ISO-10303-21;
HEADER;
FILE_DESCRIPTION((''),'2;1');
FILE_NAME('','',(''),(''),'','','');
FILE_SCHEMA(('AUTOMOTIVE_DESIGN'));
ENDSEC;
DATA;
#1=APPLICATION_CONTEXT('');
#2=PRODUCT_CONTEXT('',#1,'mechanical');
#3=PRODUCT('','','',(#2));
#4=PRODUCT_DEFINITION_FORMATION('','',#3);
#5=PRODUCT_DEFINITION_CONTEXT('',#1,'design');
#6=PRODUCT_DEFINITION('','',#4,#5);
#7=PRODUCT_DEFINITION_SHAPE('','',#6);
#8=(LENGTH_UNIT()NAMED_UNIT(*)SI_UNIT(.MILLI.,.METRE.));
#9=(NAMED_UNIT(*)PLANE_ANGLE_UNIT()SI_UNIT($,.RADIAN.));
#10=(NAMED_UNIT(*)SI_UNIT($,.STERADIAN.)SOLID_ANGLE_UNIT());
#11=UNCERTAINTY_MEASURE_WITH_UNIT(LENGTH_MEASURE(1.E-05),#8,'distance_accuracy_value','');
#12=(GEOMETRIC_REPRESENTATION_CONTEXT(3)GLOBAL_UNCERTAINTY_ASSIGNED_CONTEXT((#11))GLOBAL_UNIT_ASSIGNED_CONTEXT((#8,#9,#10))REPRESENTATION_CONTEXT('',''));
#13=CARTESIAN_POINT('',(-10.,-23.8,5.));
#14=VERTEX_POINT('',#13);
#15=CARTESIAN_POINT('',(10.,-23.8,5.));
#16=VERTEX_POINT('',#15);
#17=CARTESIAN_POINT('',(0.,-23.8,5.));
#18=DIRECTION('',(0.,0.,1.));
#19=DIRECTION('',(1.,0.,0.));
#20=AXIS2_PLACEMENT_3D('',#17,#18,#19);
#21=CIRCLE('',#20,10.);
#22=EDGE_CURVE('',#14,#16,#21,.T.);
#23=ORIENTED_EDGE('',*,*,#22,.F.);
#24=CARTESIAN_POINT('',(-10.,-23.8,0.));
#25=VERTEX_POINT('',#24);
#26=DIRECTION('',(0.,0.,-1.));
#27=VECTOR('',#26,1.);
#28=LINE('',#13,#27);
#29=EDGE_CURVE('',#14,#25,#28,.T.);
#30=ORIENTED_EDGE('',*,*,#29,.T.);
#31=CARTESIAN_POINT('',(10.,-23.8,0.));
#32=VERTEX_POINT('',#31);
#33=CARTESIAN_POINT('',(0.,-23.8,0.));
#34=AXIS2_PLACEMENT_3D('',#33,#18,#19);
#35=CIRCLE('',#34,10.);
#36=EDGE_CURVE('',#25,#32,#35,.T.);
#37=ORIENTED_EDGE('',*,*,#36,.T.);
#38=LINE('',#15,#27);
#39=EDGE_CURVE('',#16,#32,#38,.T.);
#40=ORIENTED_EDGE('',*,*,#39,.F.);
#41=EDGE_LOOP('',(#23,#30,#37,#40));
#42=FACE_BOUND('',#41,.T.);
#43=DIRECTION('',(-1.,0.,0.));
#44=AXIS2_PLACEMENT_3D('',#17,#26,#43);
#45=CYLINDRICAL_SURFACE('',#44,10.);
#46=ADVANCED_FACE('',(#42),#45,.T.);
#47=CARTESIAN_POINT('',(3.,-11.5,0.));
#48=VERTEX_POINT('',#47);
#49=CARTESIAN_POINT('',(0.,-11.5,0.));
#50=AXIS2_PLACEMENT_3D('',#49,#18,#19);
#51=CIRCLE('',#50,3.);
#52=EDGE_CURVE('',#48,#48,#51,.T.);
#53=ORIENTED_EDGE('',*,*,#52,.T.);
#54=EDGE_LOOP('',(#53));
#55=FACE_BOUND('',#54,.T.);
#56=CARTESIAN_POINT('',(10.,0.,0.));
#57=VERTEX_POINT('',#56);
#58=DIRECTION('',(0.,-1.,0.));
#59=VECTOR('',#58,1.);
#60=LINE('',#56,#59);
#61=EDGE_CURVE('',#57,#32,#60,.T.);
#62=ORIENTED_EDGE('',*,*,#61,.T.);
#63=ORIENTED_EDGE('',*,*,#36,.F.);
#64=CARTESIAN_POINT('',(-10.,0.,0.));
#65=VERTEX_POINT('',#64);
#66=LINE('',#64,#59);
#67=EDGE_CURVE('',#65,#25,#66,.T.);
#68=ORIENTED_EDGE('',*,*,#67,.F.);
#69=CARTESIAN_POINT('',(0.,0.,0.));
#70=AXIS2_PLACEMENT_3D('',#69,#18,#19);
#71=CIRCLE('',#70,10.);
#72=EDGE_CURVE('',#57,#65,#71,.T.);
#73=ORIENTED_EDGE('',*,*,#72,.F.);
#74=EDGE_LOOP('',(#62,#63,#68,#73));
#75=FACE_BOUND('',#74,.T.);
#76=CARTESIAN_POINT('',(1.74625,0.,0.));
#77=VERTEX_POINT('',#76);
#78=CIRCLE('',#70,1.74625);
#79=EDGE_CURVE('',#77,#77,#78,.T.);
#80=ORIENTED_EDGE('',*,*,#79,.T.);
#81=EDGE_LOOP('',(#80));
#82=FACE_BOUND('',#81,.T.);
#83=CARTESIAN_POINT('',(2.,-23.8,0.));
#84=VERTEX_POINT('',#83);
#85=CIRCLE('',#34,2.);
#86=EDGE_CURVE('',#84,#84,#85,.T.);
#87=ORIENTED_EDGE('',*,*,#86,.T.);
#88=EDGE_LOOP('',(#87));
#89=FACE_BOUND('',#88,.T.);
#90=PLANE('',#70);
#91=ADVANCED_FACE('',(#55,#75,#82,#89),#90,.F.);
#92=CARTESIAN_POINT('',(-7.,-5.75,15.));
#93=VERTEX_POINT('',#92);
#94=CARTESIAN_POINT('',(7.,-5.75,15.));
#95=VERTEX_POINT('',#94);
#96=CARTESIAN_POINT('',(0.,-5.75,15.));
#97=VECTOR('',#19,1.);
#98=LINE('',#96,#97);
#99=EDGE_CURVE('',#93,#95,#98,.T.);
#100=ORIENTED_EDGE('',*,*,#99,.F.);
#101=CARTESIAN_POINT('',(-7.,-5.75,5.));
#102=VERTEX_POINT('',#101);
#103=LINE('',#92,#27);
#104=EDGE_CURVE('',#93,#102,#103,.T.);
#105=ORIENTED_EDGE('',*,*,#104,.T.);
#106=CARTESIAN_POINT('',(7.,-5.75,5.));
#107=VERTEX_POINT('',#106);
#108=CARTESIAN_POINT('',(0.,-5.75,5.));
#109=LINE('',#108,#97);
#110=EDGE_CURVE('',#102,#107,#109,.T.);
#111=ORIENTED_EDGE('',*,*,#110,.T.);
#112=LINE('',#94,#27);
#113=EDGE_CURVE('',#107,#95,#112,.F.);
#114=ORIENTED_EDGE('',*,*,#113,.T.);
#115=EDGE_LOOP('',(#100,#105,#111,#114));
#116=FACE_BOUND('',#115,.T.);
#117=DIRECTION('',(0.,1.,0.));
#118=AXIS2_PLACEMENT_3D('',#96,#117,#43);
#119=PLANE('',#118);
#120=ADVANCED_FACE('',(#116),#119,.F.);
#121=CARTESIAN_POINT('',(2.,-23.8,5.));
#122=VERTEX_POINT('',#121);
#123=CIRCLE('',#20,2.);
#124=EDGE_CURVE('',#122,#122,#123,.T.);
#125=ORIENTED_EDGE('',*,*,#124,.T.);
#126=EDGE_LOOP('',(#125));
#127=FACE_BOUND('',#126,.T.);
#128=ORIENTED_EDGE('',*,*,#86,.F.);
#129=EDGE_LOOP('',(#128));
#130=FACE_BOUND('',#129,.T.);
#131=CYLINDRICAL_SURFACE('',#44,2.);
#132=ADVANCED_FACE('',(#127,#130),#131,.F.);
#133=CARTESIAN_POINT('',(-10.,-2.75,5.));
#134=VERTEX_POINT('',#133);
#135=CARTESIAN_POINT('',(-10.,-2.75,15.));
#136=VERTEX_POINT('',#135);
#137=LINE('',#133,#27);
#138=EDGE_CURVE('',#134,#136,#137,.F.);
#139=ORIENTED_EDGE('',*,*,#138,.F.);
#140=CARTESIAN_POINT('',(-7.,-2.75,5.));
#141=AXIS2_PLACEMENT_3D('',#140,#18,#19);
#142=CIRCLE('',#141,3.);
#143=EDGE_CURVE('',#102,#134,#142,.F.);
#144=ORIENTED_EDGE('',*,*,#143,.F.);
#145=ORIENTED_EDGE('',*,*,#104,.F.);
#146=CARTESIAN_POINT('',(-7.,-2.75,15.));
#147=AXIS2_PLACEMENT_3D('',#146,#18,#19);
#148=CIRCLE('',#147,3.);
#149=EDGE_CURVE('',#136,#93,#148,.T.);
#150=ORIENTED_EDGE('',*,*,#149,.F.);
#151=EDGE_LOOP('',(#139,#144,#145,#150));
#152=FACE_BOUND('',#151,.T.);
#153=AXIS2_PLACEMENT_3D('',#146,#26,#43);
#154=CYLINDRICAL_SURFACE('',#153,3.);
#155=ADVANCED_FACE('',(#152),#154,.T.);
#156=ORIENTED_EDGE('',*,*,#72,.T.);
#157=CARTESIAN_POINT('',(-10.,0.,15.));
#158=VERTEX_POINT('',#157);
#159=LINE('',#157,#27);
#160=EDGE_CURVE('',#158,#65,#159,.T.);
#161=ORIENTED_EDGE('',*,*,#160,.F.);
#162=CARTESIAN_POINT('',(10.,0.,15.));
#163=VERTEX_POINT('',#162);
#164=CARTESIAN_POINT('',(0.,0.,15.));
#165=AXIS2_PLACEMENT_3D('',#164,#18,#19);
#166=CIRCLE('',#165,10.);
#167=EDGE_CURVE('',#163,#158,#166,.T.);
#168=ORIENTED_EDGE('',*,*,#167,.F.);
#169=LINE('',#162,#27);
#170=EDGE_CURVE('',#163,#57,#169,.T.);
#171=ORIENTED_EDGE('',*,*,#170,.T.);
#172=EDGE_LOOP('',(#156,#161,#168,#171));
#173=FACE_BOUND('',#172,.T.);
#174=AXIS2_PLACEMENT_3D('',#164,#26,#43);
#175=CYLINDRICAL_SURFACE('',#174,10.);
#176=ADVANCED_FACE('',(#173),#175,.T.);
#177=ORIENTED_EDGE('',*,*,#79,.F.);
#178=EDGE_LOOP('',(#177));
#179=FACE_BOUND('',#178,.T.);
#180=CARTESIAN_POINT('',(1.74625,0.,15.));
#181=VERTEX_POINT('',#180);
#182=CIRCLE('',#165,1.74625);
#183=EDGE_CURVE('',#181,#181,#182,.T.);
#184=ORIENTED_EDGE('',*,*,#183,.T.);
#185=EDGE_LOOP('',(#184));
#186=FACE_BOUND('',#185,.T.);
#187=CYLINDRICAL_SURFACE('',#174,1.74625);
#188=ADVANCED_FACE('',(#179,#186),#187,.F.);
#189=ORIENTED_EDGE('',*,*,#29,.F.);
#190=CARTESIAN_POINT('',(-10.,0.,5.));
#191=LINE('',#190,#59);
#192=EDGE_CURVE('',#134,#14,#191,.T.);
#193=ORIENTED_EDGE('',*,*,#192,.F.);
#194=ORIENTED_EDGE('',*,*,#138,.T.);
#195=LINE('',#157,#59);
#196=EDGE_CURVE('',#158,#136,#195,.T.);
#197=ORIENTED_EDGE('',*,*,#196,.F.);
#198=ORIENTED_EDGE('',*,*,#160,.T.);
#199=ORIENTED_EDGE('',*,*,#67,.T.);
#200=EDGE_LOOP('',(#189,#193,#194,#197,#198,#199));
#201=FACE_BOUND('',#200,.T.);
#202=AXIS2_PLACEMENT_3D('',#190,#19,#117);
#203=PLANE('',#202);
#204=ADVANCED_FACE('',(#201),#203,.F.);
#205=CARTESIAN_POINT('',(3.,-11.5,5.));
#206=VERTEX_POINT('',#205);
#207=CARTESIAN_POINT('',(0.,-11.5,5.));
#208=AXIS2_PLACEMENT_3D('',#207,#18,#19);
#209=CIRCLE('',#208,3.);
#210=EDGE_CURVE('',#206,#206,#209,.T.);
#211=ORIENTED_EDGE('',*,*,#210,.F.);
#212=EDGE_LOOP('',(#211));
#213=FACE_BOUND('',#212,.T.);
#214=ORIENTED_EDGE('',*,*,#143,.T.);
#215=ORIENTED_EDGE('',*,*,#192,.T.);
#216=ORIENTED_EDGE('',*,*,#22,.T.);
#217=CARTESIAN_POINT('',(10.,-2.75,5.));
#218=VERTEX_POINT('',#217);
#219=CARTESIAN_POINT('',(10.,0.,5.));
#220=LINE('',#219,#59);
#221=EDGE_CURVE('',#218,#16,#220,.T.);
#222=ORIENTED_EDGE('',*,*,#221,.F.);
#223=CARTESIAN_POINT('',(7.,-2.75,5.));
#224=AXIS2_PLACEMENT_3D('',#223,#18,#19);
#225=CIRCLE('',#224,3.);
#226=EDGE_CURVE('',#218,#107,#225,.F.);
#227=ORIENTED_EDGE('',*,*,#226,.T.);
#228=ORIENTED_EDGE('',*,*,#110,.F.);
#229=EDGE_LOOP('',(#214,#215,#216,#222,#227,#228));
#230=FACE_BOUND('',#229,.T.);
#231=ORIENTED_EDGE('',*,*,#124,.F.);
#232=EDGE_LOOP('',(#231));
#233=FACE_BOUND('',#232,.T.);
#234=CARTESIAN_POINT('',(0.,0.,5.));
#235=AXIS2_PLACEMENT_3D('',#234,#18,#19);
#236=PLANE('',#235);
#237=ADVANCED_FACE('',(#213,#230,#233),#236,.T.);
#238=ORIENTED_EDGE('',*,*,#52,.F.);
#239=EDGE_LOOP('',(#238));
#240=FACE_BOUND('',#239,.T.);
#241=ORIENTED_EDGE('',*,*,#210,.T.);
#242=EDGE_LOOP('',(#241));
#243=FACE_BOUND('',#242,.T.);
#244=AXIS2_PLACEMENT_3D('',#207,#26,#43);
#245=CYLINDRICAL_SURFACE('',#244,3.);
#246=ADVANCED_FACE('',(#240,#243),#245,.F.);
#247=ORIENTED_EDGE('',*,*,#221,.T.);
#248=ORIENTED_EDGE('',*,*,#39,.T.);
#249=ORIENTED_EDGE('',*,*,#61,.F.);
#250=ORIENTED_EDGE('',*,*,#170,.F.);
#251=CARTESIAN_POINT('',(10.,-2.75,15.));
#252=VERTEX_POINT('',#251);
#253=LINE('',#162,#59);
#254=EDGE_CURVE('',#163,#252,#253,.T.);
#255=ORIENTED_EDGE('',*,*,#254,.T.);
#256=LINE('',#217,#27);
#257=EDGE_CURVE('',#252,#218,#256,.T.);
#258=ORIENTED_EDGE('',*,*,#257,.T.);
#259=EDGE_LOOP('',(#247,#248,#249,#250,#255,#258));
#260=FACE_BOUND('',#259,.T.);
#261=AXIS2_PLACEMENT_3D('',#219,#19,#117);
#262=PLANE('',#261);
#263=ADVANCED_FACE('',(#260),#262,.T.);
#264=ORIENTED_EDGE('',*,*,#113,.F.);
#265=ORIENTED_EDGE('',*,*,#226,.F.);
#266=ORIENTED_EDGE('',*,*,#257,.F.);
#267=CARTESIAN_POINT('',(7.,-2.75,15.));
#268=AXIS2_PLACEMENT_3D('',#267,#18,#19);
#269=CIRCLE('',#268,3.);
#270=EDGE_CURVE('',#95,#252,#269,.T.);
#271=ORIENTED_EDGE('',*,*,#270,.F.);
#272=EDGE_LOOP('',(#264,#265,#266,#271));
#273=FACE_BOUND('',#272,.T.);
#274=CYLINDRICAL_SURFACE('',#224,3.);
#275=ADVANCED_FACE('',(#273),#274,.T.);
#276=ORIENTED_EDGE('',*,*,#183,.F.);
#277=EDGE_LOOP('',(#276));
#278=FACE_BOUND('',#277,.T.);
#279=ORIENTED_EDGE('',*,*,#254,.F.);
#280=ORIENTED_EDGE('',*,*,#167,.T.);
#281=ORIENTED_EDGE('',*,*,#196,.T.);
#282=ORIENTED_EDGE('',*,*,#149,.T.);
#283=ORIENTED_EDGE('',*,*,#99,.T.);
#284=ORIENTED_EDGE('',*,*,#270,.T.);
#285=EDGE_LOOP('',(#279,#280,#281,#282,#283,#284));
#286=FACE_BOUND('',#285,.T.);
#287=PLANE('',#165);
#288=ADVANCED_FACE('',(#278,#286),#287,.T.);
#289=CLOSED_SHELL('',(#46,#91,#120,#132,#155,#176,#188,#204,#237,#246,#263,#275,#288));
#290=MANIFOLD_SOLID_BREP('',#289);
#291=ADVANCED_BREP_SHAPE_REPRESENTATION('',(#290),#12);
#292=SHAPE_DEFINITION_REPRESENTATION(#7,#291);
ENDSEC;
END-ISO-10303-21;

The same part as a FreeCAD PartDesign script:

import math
import FreeCAD as App
import Part
import Sketcher

V = App.Vector
Q = App.Units.Quantity


def edges_at(feature, points):
    """Names of the edges that pass closest to the given points."""
    edges = feature.Shape.Edges
    near = lambda p: min(range(len(edges)), key=lambda i: edges[i].distToShape(Part.Vertex(*p))[0])
    return sorted({f"Edge{near(p) + 1}" for p in points})

doc = App.newDocument("Part")
params = doc.addObject("Spreadsheet::Sheet", "Params")
for row, (alias, value) in enumerate([
    ("sketch1_diameter", "4 mm"),
    ("sketch1_diameter2", "6 mm"),
    ("sketch1_radius", "10 mm"),
    ("sketch1_height", "18.05 mm"),
    ("pad1_length", "5 mm"),
    ("sketch2_radius", "10 mm"),
    ("sketch2_height", "5.75 mm"),
    ("pad2_length", "15 mm"),
    ("fillet_radius", "3 mm"),
], start=1):
    params.set(f"A{row}", alias)
    params.set(f"B{row}", "=" + value)
    params.setAlias(f"B{row}", alias)

body = doc.addObject("PartDesign::Body", "Body")

# Sketch on XY plane
sketch1 = doc.addObject("Sketcher::SketchObject", "Sketch")
body.addObject(sketch1)
sketch1.AttachmentSupport = (doc.XY_Plane, [""])
sketch1.MapMode = "FlatFace"
sketch1.addGeometry(Part.LineSegment(V(10, -23.8, 0), V(10, -5.8, 0)), False)
sketch1.addGeometry(Part.LineSegment(V(10, -5.8, 0), V(-10, -5.8, 0)), False)
sketch1.addGeometry(Part.LineSegment(V(-10, -5.8, 0), V(-10, -23.8, 0)), False)
sketch1.addGeometry(Part.ArcOfCircle(Part.Circle(V(0, -23.8, 0), V(0, 0, 1), 10), math.radians(180), math.radians(360)), False)
sketch1.addGeometry(Part.Circle(V(0, -23.8, 0), V(0, 0, 1), 2), False)
sketch1.addGeometry(Part.Circle(V(0, -11.5, 0), V(0, 0, 1), 3), False)
sketch1.addConstraint(Sketcher.Constraint("Coincident", 0, 2, 1, 1))
sketch1.addConstraint(Sketcher.Constraint("Coincident", 1, 2, 2, 1))
sketch1.addConstraint(Sketcher.Constraint("Tangent", 2, 2, 3, 1))
sketch1.addConstraint(Sketcher.Constraint("Tangent", 3, 2, 0, 1))
sketch1.addConstraint(Sketcher.Constraint("Vertical", 0))
sketch1.addConstraint(Sketcher.Constraint("Horizontal", 1))
sketch1.addConstraint(Sketcher.Constraint("Vertical", 2))
sketch1.addConstraint(Sketcher.Constraint("Coincident", 4, 3, 3, 3))
sketch1.addConstraint(Sketcher.Constraint("PointOnObject", 3, 3, -2))
sketch1.addConstraint(Sketcher.Constraint("PointOnObject", 5, 3, -2))
sketch1.addConstraint(Sketcher.Constraint("Diameter", 4, Q("4 mm")))
sketch1.addConstraint(Sketcher.Constraint("Diameter", 5, Q("6 mm")))
sketch1.addConstraint(Sketcher.Constraint("Radius", 3, Q("10 mm")))
sketch1.addConstraint(Sketcher.Constraint("DistanceY", 0, 1, 0, 2, Q("18.05 mm")))
sketch1.addConstraint(Sketcher.Constraint("DistanceY", 3, 3, -1, 1, Q("23.8 mm")))
sketch1.addConstraint(Sketcher.Constraint("DistanceY", 5, 3, -1, 1, Q("11.5 mm")))
sketch1.setExpression("Constraints[10]", "Params.sketch1_diameter")
sketch1.setExpression("Constraints[11]", "Params.sketch1_diameter2")
sketch1.setExpression("Constraints[12]", "Params.sketch1_radius")
sketch1.setExpression("Constraints[13]", "Params.sketch1_height")
pad1 = doc.addObject("PartDesign::Pad", "Pad")
body.addObject(pad1)
pad1.Profile = sketch1
pad1.setExpression("Length", "Params.pad1_length")

# Sketch on XY plane
sketch2 = doc.addObject("Sketcher::SketchObject", "Sketch001")
body.addObject(sketch2)
sketch2.AttachmentSupport = (doc.XY_Plane, [""])
sketch2.MapMode = "FlatFace"
sketch2.addGeometry(Part.LineSegment(V(10, -5.8, 0), V(10, 0, 0)), False)
sketch2.addGeometry(Part.ArcOfCircle(Part.Circle(V(0, 0, 0), V(0, 0, 1), 10), math.radians(0), math.radians(180)), False)
sketch2.addGeometry(Part.LineSegment(V(-10, 0, 0), V(-10, -5.8, 0)), False)
sketch2.addGeometry(Part.LineSegment(V(-10, -5.8, 0), V(10, -5.8, 0)), False)
sketch2.addGeometry(Part.Circle(V(0, 0, 0), V(0, 0, 1), 1.7), False)
sketch2.addConstraint(Sketcher.Constraint("Tangent", 0, 2, 1, 1))
sketch2.addConstraint(Sketcher.Constraint("Tangent", 1, 2, 2, 1))
sketch2.addConstraint(Sketcher.Constraint("Coincident", 2, 2, 3, 1))
sketch2.addConstraint(Sketcher.Constraint("Coincident", 3, 2, 0, 1))
sketch2.addConstraint(Sketcher.Constraint("Vertical", 0))
sketch2.addConstraint(Sketcher.Constraint("Vertical", 2))
sketch2.addConstraint(Sketcher.Constraint("Horizontal", 3))
sketch2.addConstraint(Sketcher.Constraint("Coincident", 1, 3, -1, 1))
sketch2.addConstraint(Sketcher.Constraint("Coincident", 4, 3, -1, 1))
sketch2.addConstraint(Sketcher.Constraint("Radius", 1, Q("10 mm")))
sketch2.addConstraint(Sketcher.Constraint("Diameter", 4, Q("3.4925 mm")))
sketch2.addConstraint(Sketcher.Constraint("DistanceY", 0, 1, 0, 2, Q("5.75 mm")))
sketch2.setExpression("Constraints[9]", "Params.sketch2_radius")
sketch2.setExpression("Constraints[11]", "Params.sketch2_height")
pad2 = doc.addObject("PartDesign::Pad", "Pad001")
body.addObject(pad2)
pad2.Profile = sketch2
pad2.setExpression("Length", "Params.pad2_length")
doc.recompute()

fillet = doc.addObject("PartDesign::Fillet", "Fillet")
body.addObject(fillet)
fillet.Base = (pad2, edges_at(pad2, [(-10, -5.75, 10), (10, -5.75, 10)]))
fillet.setExpression("Radius", "Params.fillet_radius")

doc.recompute()
